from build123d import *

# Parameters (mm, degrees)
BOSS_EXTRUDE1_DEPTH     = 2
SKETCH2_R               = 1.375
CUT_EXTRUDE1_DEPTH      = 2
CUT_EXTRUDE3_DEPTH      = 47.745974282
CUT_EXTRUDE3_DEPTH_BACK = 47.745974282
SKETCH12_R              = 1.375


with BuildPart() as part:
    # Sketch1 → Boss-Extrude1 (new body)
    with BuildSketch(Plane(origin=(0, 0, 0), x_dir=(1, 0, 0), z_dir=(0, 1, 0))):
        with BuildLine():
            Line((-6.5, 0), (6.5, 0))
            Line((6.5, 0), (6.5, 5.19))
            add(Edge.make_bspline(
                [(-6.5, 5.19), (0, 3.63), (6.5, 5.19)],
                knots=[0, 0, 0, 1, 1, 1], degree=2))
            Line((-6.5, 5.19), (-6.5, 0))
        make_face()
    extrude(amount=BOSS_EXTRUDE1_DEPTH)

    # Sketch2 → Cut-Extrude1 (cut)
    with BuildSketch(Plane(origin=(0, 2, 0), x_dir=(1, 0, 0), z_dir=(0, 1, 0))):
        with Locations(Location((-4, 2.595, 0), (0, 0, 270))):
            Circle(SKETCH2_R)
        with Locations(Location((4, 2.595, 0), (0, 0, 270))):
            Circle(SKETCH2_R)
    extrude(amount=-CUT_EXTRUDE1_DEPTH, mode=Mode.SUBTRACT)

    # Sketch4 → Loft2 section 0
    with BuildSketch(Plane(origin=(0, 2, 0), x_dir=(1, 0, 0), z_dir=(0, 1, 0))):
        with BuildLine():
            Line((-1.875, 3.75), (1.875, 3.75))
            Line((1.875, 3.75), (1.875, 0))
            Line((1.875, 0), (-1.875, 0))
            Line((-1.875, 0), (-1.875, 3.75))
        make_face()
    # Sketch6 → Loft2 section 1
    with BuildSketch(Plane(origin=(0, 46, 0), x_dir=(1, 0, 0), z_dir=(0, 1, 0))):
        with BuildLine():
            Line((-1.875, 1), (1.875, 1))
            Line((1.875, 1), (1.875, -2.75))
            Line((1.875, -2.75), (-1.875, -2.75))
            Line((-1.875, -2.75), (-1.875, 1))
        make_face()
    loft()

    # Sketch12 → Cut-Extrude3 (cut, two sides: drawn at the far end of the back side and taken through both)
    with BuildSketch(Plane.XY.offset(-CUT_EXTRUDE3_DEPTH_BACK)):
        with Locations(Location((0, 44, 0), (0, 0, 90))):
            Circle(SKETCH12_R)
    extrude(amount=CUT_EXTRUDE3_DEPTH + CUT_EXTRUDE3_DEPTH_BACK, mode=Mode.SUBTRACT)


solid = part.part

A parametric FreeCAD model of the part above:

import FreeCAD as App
import Part
import Sketcher

V = App.Vector


def add_polygon(sketch, points):
    """Adds a closed chain of lines whose ends are joined by coincident constraints."""
    first, n = sketch.GeometryCount, len(points)
    for a, b in zip(points, points[1:] + points[:1]):
        sketch.addGeometry(Part.LineSegment(App.Vector(*a, 0), App.Vector(*b, 0)), False)
    for i in range(n):
        sketch.addConstraint(Sketcher.Constraint("Coincident", first + i, 2, first + (i + 1) % n, 1))

doc = App.newDocument("Part")
params = doc.addObject("Spreadsheet::Sheet", "Params")
for row, (alias, value) in enumerate([
    ("pad1_length", "2 mm"),
    ("sketch2_diameter", "2.75 mm"),
    ("pocket1_length", "2 mm"),
    ("sketch3_width", "3.75 mm"),
    ("sketch4_width", "3.75 mm"),
    ("sketch5_diameter", "2.75 mm"),
], start=1):
    params.set(f"A{row}", alias)
    params.set(f"B{row}", "=" + value)
    params.setAlias(f"B{row}", alias)

body = doc.addObject("PartDesign::Body", "Body")

# Sketch on XZ plane
sketch1 = doc.addObject("Sketcher::SketchObject", "Sketch")
body.addObject(sketch1)
sketch1.AttachmentSupport = (doc.XZ_Plane, [""])
sketch1.MapMode = "FlatFace"
sketch1.addGeometry([
    Part.LineSegment(V(-6.5, 0, 0), V(6.5, 0, 0)),
    Part.LineSegment(V(6.5, 0, 0), V(6.5, -5.19, 0)),
    Part.BSplineCurve([V(-6.5, -5.19, 0), V(0, -3.63, 0), V(6.5, -5.19, 0)], [3, 3], [0, 1], False, 2, [1, 1, 1], False),
    Part.LineSegment(V(-6.5, -5.19, 0), V(-6.5, 0, 0)),
], False)
sketch1.addConstraint([
    Sketcher.Constraint("Block", 2),
    Sketcher.Constraint("Coincident", 0, 2, 1, 1),
    Sketcher.Constraint("Coincident", 1, 2, 2, 2),
    Sketcher.Constraint("Coincident", 2, 1, 3, 1),
    Sketcher.Constraint("Coincident", 3, 2, 0, 1),
    Sketcher.Constraint("Horizontal", 0),
    Sketcher.Constraint("Vertical", 1),
    Sketcher.Constraint("Vertical", 3),
    Sketcher.Constraint("PointOnObject", 0, 2, -1),
])
pad1 = doc.addObject("PartDesign::Pad", "Pad")
body.addObject(pad1)
pad1.Profile = sketch1
pad1.setExpression("Length", "Params.pad1_length")
pad1.Reversed = True

# Sketch on XZ plane
sketch2 = doc.addObject("Sketcher::SketchObject", "Sketch001")
body.addObject(sketch2)
sketch2.AttachmentSupport = (doc.XZ_Plane, [""])
sketch2.MapMode = "FlatFace"
sketch2.AttachmentOffset = App.Placement(V(0, 0, -2), App.Rotation())
sketch2.addGeometry([
    Part.Circle(V(-4, -2.595, 0), V(0, 0, 1), 1.375),
    Part.Circle(V(4, -2.595, 0), V(0, 0, 1), 1.375),
], False)
sketch2.addConstraint([
    Sketcher.Constraint("Equal", 0, 1),
    Sketcher.Constraint("Symmetric", 0, 3, 1, 3, -2),
    Sketcher.Constraint("Diameter", 0, 2.75),
    Sketcher.Constraint("DistanceX", 0, 3, -1, 1, 4.0),
    Sketcher.Constraint("DistanceY", 0, 3, -1, 1, 2.595),
])
sketch2.setExpression("Constraints[2]", "Params.sketch2_diameter")
pocket1 = doc.addObject("PartDesign::Pocket", "Pocket")
body.addObject(pocket1)
pocket1.Profile = sketch2
pocket1.setExpression("Length", "Params.pocket1_length")
pocket1.Reversed = True

# Sketch on XZ plane
sketch3 = doc.addObject("Sketcher::SketchObject", "Sketch002")
body.addObject(sketch3)
sketch3.AttachmentSupport = (doc.XZ_Plane, [""])
sketch3.MapMode = "FlatFace"
sketch3.AttachmentOffset = App.Placement(V(0, 0, -2), App.Rotation())
add_polygon(sketch3, [(1.875, -3.75), (-1.875, -3.75), (-1.875, 0), (1.875, 0)])  # lines 0-3
sketch3.addConstraint([
    Sketcher.Constraint("Horizontal", 0),
    Sketcher.Constraint("Vertical", 1),
    Sketcher.Constraint("Horizontal", 2),
    Sketcher.Constraint("Vertical", 3),
    Sketcher.Constraint("Symmetric", 1, 2, 2, 2, -1, 1),
    Sketcher.Constraint("Equal", 2, 1),
    Sketcher.Constraint("DistanceX", 0, 2, 0, 1, 3.75),
])
sketch3.setExpression("Constraints[10]", "Params.sketch3_width")

# Sketch on XZ plane
sketch4 = doc.addObject("Sketcher::SketchObject", "Sketch003")
body.addObject(sketch4)
sketch4.AttachmentSupport = (doc.XZ_Plane, [""])
sketch4.MapMode = "FlatFace"
sketch4.AttachmentOffset = App.Placement(V(0, 0, -46), App.Rotation())
add_polygon(sketch4, [(1.875, -1), (-1.875, -1), (-1.875, 2.75), (1.875, 2.75)])  # lines 0-3
sketch4.addConstraint([
    Sketcher.Constraint("Horizontal", 0),
    Sketcher.Constraint("Vertical", 1),
    Sketcher.Constraint("Horizontal", 2),
    Sketcher.Constraint("Vertical", 3),
    Sketcher.Constraint("Equal", 2, 1),
    Sketcher.Constraint("DistanceY", 0, 2, -1, 1, 1.0),
    Sketcher.Constraint("DistanceX", 0, 2, 0, 1, 3.75),
    Sketcher.Constraint("DistanceX", 0, 2, -1, 1, 1.875),
])
sketch4.setExpression("Constraints[10]", "Params.sketch4_width")

additiveloft = doc.addObject("PartDesign::AdditiveLoft", "AdditiveLoft")
body.addObject(additiveloft)
additiveloft.Profile = sketch3
additiveloft.Sections = [sketch4]

# Sketch on XY plane
sketch5 = doc.addObject("Sketcher::SketchObject", "Sketch004")
body.addObject(sketch5)
sketch5.AttachmentSupport = (doc.XY_Plane, [""])
sketch5.MapMode = "FlatFace"
sketch5.addGeometry(Part.Circle(V(0, 44, 0), V(0, 0, 1), 1.375), False)
sketch5.addConstraint([
    Sketcher.Constraint("PointOnObject", 0, 3, -2),
    Sketcher.Constraint("Diameter", 0, 2.75),
    Sketcher.Constraint("DistanceY", -1, 1, 0, 3, 44.0),
])
sketch5.setExpression("Constraints[1]", "Params.sketch5_diameter")
pocket2 = doc.addObject("PartDesign::Pocket", "Pocket001")
body.addObject(pocket2)
pocket2.Profile = sketch5
pocket2.Type = "ThroughAll"
pocket2.Midplane = True

doc.recompute()
